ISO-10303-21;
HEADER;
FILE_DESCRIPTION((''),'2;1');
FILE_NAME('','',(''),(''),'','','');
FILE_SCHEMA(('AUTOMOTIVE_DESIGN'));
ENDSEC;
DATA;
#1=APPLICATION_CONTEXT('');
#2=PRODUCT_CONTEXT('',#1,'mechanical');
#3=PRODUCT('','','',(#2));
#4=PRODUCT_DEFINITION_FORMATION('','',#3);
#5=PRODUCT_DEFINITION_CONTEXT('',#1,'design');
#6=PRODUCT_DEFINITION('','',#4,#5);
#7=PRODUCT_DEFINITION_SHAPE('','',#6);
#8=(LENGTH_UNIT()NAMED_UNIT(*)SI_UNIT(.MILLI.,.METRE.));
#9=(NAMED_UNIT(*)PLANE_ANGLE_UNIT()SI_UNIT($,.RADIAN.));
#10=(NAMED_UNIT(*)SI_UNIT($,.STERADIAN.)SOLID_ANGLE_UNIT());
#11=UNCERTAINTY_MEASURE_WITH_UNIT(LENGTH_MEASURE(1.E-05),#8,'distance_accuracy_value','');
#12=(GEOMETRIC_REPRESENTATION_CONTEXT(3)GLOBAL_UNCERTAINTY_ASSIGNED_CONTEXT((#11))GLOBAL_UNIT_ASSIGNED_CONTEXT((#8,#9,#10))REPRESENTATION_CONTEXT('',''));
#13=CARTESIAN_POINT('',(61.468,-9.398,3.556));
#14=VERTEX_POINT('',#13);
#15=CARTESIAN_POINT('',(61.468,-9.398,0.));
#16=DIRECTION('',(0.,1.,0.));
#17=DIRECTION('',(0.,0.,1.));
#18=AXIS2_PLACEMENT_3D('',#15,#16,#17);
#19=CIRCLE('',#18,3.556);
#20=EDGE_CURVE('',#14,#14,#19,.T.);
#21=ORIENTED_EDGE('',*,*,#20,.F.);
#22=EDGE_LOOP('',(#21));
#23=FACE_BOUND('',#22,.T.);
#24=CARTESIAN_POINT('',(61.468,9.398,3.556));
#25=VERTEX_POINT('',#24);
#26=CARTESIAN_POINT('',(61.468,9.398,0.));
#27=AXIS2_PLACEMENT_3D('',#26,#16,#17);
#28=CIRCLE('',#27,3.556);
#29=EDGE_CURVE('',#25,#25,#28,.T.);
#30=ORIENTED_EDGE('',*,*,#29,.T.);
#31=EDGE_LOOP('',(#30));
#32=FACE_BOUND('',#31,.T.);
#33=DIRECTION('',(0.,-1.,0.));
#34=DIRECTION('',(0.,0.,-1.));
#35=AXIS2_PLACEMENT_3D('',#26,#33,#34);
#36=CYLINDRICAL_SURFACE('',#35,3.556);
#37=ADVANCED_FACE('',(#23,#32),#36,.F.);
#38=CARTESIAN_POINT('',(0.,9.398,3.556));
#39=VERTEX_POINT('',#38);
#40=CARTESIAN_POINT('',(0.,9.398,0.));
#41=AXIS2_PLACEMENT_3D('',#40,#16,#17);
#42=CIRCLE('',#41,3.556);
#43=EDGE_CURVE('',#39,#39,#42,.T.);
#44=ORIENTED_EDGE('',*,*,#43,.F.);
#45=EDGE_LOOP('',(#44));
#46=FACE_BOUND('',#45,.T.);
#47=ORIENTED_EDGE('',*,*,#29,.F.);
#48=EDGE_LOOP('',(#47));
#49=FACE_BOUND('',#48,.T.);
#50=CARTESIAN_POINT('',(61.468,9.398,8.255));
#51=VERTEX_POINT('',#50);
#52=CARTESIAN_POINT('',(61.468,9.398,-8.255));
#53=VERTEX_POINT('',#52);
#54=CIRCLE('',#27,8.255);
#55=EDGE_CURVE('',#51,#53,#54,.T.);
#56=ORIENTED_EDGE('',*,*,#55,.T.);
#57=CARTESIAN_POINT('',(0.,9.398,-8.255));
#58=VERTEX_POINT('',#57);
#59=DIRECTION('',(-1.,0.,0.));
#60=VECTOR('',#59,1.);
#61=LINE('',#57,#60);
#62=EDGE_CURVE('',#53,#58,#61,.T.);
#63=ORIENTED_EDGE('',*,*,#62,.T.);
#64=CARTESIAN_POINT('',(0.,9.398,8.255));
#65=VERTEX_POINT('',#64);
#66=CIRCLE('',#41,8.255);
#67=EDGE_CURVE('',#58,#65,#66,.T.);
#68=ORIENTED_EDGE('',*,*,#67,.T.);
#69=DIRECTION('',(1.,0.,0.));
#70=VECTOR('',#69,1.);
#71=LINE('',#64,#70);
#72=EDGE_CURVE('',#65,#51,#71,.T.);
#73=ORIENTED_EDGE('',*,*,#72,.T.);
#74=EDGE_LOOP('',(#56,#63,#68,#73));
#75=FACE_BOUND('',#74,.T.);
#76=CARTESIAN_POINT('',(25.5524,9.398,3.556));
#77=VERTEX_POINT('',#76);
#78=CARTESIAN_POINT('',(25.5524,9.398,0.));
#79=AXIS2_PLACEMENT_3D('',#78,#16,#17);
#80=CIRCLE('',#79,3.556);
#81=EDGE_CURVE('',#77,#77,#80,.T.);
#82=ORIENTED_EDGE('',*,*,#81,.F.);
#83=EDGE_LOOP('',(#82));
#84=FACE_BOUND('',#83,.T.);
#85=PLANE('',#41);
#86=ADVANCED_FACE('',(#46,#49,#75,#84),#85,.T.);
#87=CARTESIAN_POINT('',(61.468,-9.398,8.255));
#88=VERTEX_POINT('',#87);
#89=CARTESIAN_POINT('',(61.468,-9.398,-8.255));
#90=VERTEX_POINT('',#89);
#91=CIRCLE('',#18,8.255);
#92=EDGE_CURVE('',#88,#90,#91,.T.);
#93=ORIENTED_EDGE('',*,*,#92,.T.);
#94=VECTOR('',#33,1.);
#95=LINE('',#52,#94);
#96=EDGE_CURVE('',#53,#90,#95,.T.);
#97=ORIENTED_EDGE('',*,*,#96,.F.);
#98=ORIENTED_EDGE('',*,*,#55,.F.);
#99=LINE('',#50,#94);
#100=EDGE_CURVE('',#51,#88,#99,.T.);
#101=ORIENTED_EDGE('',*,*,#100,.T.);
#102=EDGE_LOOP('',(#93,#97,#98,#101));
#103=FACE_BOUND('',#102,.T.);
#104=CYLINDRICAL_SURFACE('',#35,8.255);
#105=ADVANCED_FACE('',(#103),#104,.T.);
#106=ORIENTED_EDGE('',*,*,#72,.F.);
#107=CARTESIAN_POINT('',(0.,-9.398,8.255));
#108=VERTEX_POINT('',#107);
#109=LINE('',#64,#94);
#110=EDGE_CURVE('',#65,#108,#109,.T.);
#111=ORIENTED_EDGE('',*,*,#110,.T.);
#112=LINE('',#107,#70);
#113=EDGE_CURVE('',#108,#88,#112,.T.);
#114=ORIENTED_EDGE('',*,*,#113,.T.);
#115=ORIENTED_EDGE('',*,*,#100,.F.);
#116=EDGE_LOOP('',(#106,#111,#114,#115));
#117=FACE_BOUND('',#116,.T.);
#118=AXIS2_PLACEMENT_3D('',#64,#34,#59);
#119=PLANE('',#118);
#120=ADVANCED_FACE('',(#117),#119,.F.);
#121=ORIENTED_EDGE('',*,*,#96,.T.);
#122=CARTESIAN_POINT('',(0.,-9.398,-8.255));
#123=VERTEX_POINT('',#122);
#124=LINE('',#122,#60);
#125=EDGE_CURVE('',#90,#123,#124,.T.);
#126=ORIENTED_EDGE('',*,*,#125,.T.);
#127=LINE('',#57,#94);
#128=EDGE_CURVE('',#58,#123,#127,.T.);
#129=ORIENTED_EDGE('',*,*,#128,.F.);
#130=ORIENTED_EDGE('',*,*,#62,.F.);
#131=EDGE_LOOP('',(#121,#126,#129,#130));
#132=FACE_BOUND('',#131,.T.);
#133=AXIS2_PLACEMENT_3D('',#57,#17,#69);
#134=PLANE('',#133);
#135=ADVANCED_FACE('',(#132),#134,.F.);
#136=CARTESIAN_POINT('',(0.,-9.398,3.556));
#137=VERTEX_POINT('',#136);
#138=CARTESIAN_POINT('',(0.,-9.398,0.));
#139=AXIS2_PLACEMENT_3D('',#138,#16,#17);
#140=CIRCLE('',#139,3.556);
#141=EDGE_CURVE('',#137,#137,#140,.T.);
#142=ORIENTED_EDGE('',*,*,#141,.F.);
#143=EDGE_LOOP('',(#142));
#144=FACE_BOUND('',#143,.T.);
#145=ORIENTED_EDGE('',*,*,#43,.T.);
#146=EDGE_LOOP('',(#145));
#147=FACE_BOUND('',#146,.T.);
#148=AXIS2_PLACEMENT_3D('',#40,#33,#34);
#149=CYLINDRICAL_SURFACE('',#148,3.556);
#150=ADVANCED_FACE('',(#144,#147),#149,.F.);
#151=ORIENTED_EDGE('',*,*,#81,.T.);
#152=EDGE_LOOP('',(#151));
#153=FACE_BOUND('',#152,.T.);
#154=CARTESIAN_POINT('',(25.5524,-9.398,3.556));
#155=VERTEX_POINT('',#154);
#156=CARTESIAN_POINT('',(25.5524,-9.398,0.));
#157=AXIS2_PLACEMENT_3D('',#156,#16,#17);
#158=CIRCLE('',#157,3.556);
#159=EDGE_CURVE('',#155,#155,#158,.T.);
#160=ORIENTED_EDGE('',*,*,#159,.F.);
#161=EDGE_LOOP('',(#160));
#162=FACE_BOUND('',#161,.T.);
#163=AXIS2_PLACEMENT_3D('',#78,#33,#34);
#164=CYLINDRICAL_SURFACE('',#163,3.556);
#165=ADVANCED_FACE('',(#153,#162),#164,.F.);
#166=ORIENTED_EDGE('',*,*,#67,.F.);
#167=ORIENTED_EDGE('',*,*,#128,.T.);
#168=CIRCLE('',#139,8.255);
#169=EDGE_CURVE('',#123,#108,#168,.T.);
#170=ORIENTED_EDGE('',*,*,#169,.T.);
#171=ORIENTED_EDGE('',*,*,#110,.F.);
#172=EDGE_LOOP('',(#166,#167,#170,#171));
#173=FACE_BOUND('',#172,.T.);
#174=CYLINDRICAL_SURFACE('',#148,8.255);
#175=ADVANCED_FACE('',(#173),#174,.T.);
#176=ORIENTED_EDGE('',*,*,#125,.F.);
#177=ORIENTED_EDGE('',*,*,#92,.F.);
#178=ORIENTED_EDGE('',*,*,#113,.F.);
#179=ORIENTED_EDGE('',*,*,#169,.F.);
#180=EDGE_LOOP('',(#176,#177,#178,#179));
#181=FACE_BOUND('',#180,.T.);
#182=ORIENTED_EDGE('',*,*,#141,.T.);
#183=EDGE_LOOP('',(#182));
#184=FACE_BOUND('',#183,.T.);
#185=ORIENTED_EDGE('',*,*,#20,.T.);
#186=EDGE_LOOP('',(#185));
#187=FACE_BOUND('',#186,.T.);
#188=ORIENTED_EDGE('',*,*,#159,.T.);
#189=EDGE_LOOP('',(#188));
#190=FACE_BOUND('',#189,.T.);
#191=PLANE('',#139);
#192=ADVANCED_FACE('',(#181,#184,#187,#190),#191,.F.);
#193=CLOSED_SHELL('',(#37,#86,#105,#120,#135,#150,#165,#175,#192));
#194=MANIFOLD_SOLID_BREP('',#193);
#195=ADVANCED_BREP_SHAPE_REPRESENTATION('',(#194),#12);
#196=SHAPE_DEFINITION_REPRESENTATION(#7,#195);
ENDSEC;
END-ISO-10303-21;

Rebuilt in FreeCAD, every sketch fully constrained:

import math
import FreeCAD as App
import Part
import Sketcher
from FreeCAD import Vector
Q = App.Units.Quantity

doc = App.newDocument("Part")
params = doc.addObject("Spreadsheet::Sheet", "Params")
for row, (alias, value) in enumerate([
    ("sketch1_diameter", "0.28 in"),
    ("sketch1_radius", "0.325 in"),
    ("sketch1_width", "2.42 in"),
    ("pad1_length", "0.74 in"),
], start=1):
    params.set(f"A{row}", alias)
    params.set(f"B{row}", "=" + value)
    params.setAlias(f"B{row}", alias)

body = doc.addObject("PartDesign::Body", "Body")

# Sketch on XZ plane
sketch1 = body.newObject("Sketcher::SketchObject", "Sketch")
sketch1.AttachmentSupport = (doc.getObject("XZ_Plane"), [""])
sketch1.MapMode = "FlatFace"
sketch1.addGeometry(Part.LineSegment(Vector(61.468, -8.255, 0), Vector(0, -8.255, 0)), False)
sketch1.addGeometry(Part.ArcOfCircle(Part.Circle(Vector(0, 0, 0), Vector(0, 0, 1), 8.255), math.radians(90), math.radians(270)), False)
sketch1.addGeometry(Part.LineSegment(Vector(0, 8.255, 0), Vector(61.468, 8.255, 0)), False)
sketch1.addGeometry(Part.ArcOfCircle(Part.Circle(Vector(61.468, 0, 0), Vector(0, 0, 1), 8.255), math.radians(-90), math.radians(90)), False)
sketch1.addGeometry(Part.Circle(Vector(61.468, 0, 0), Vector(0, 0, 1), 3.556), False)
sketch1.addGeometry(Part.Circle(Vector(25.5524, 0, 0), Vector(0, 0, 1), 3.556), False)
sketch1.addGeometry(Part.Circle(Vector(0, 0, 0), Vector(0, 0, 1), 3.556), False)
sketch1.addConstraint(Sketcher.Constraint("Tangent", 0, 2, 1, 2))
sketch1.addConstraint(Sketcher.Constraint("Tangent", 1, 1, 2, 1))
sketch1.addConstraint(Sketcher.Constraint("Tangent", 2, 2, 3, 2))
sketch1.addConstraint(Sketcher.Constraint("Tangent", 3, 1, 0, 1))
sketch1.addConstraint(Sketcher.Constraint("Horizontal", 0))
sketch1.addConstraint(Sketcher.Constraint("Horizontal", 2))
sketch1.addConstraint(Sketcher.Constraint("Coincident", 1, 3, -1, 1))
sketch1.addConstraint(Sketcher.Constraint("Coincident", 6, 3, -1, 1))
sketch1.addConstraint(Sketcher.Constraint("Coincident", 4, 3, 3, 3))
sketch1.addConstraint(Sketcher.Constraint("Equal", 4, 5))
sketch1.addConstraint(Sketcher.Constraint("Equal", 5, 6))
sketch1.addConstraint(Sketcher.Constraint("PointOnObject", 5, 3, -1))
sketch1.addConstraint(Sketcher.Constraint("Diameter", 4, Q("0.28 in")))
sketch1.addConstraint(Sketcher.Constraint("Radius", 1, Q("0.325 in")))
sketch1.addConstraint(Sketcher.Constraint("DistanceX", 0, 2, 0, 1, Q("2.42 in")))
sketch1.addConstraint(Sketcher.Constraint("DistanceX", -1, 1, 5, 3, Q("1.006 in")))
sketch1.setExpression("Constraints[12]", "Params.sketch1_diameter")
sketch1.setExpression("Constraints[13]", "Params.sketch1_radius")
sketch1.setExpression("Constraints[14]", "Params.sketch1_width")
pad1 = body.newObject("PartDesign::Pad", "Pad")
pad1.Profile = sketch1
pad1.setExpression("Length", "Params.pad1_length")
pad1.Midplane = True

doc.recompute()
